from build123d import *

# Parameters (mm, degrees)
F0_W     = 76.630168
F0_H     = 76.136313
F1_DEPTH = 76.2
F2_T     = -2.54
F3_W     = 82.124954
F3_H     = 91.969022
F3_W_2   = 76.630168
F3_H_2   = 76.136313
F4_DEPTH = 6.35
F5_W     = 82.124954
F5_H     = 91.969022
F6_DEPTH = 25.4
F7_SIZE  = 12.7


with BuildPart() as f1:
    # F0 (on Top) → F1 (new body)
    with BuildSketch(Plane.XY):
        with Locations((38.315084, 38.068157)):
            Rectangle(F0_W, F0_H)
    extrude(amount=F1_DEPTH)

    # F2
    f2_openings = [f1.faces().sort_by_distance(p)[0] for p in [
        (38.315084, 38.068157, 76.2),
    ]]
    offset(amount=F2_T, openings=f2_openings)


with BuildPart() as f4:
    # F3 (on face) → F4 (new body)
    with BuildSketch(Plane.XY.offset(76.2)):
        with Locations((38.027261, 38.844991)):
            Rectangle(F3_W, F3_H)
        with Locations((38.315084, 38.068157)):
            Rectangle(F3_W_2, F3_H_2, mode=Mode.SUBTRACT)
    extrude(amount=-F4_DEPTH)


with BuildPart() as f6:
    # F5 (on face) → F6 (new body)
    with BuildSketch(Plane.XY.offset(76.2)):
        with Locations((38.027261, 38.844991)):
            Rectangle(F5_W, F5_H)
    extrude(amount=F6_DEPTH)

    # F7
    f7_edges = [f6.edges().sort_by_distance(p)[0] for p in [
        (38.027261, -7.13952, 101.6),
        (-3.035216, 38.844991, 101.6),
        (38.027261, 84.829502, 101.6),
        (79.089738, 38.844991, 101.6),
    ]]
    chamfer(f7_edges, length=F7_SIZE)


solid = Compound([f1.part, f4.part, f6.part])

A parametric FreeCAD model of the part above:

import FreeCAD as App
import Part
import Sketcher

V = App.Vector
Q = App.Units.Quantity


def edges_at(feature, points):
    """Names of the edges that pass closest to the given points."""
    edges = feature.Shape.Edges
    near = lambda p: min(range(len(edges)), key=lambda i: edges[i].distToShape(Part.Vertex(*p))[0])
    return sorted({f"Edge{near(p) + 1}" for p in points})


def faces_at(feature, points):
    """Names of the faces that lie closest to the given points."""
    faces = feature.Shape.Faces
    near = lambda p: min(range(len(faces)), key=lambda i: faces[i].distToShape(Part.Vertex(*p))[0])
    return sorted({f"Face{near(p) + 1}" for p in points})


def add_polygon(sketch, points):
    """Adds a closed chain of lines whose ends are joined by coincident constraints."""
    first, n = sketch.GeometryCount, len(points)
    for a, b in zip(points, points[1:] + points[:1]):
        sketch.addGeometry(Part.LineSegment(App.Vector(*a, 0), App.Vector(*b, 0)), False)
    for i in range(n):
        sketch.addConstraint(Sketcher.Constraint("Coincident", first + i, 2, first + (i + 1) % n, 1))

doc = App.newDocument("Part")
body = doc.addObject("PartDesign::Body", "Body")

sketch1 = doc.addObject("Sketcher::SketchObject", "Sketch")
body.addObject(sketch1)
sketch1.AttachmentSupport = (doc.XY_Plane, [""])
sketch1.MapMode = "FlatFace"
add_polygon(sketch1, [(0, 76), (0, 0), (77, 0), (77, 76)])
sketch1.addConstraint(Sketcher.Constraint("Vertical", 0))
sketch1.addConstraint(Sketcher.Constraint("Horizontal", 1))
sketch1.addConstraint(Sketcher.Constraint("Vertical", 2))
sketch1.addConstraint(Sketcher.Constraint("Horizontal", 3))
sketch1.addConstraint(Sketcher.Constraint("Coincident", 0, 2, -1, 1))
sketch1.addConstraint(Sketcher.Constraint("DistanceX", 1, 1, 1, 2, Q("76.630168 mm")))
sketch1.addConstraint(Sketcher.Constraint("DistanceY", 0, 2, 0, 1, Q("76.136313 mm")))
pad1 = doc.addObject("PartDesign::Pad", "Pad")
body.addObject(pad1)
pad1.Profile = sketch1
pad1.Length = Q("3 in")
doc.recompute()

thickness = doc.addObject("PartDesign::Thickness", "Thickness")
body.addObject(thickness)
thickness.Base = (pad1, faces_at(pad1, [(38.315, 38.068, 76.2)]))
thickness.Value = Q("0.1 in")
thickness.Reversed = True
thickness.Join = "Arc"
body2 = doc.addObject("PartDesign::Body", "Body001")

sketch2 = doc.addObject("Sketcher::SketchObject", "Sketch001")
body2.addObject(sketch2)
sketch2.AttachmentSupport = (doc.getObject("XY_Plane001"), [""])
sketch2.MapMode = "FlatFace"
sketch2.AttachmentOffset = App.Placement(V(0, 0, 3 * 25.4), App.Rotation())
add_polygon(sketch2, [(-3, 85), (-3, -7), (79, -7), (79, 85)])
add_polygon(sketch2, [(77, 0), (0, 0), (0, 76), (77, 76)])
sketch2.addConstraint(Sketcher.Constraint("Vertical", 0))
sketch2.addConstraint(Sketcher.Constraint("Horizontal", 1))
sketch2.addConstraint(Sketcher.Constraint("Vertical", 2))
sketch2.addConstraint(Sketcher.Constraint("Horizontal", 3))
sketch2.addConstraint(Sketcher.Constraint("Horizontal", 4))
sketch2.addConstraint(Sketcher.Constraint("Vertical", 5))
sketch2.addConstraint(Sketcher.Constraint("Horizontal", 6))
sketch2.addConstraint(Sketcher.Constraint("Vertical", 7))
sketch2.addConstraint(Sketcher.Constraint("Coincident", 4, 2, -1, 1))
sketch2.addConstraint(Sketcher.Constraint("DistanceY", 4, 2, 3, 2, Q("84.829502 mm")))
sketch2.addConstraint(Sketcher.Constraint("DistanceX", 1, 1, 1, 2, Q("82.124954 mm")))
sketch2.addConstraint(Sketcher.Constraint("DistanceX", 4, 2, 4, 1, Q("76.630168 mm")))
sketch2.addConstraint(Sketcher.Constraint("DistanceY", 0, 2, 0, 1, Q("91.969022 mm")))
sketch2.addConstraint(Sketcher.Constraint("DistanceY", 5, 1, 5, 2, Q("76.136313 mm")))
sketch2.addConstraint(Sketcher.Constraint("DistanceX", 6, 2, 2, 2, Q("2.45957 mm")))
pad2 = doc.addObject("PartDesign::Pad", "Pad001")
body2.addObject(pad2)
pad2.Profile = sketch2
pad2.Length = Q("0.25 in")
pad2.Reversed = True
body3 = doc.addObject("PartDesign::Body", "Body002")

sketch3 = doc.addObject("Sketcher::SketchObject", "Sketch002")
body3.addObject(sketch3)
sketch3.AttachmentSupport = (doc.getObject("XY_Plane002"), [""])
sketch3.MapMode = "FlatFace"
sketch3.AttachmentOffset = App.Placement(V(0, 0, 3 * 25.4), App.Rotation())
add_polygon(sketch3, [(-3, 85), (-3, -7), (79, -7), (79, 85)])
sketch3.addConstraint(Sketcher.Constraint("Vertical", 0))
sketch3.addConstraint(Sketcher.Constraint("Horizontal", 1))
sketch3.addConstraint(Sketcher.Constraint("Vertical", 2))
sketch3.addConstraint(Sketcher.Constraint("Horizontal", 3))
sketch3.addConstraint(Sketcher.Constraint("DistanceX", 1, 1, 1, 2, Q("82.124954 mm")))
sketch3.addConstraint(Sketcher.Constraint("DistanceY", 0, 2, 0, 1, Q("91.969022 mm")))
sketch3.addConstraint(Sketcher.Constraint("DistanceY", 0, 2, -1, 1, Q("7.13952 mm")))
sketch3.addConstraint(Sketcher.Constraint("DistanceX", 0, 2, -1, 1, Q("3.035216 mm")))
pad3 = doc.addObject("PartDesign::Pad", "Pad002")
body3.addObject(pad3)
pad3.Profile = sketch3
pad3.Length = Q("1 in")
doc.recompute()

chamfer = doc.addObject("PartDesign::Chamfer", "Chamfer")
body3.addObject(chamfer)
chamfer.Base = (pad3, edges_at(pad3, [
    (38.027, -7.14, 101.6),
    (-3.035, 38.845, 101.6),
    (38.027, 84.83, 101.6),
    (79.09, 38.845, 101.6),
]))
chamfer.Size = Q("0.5 in")

doc.recompute()
